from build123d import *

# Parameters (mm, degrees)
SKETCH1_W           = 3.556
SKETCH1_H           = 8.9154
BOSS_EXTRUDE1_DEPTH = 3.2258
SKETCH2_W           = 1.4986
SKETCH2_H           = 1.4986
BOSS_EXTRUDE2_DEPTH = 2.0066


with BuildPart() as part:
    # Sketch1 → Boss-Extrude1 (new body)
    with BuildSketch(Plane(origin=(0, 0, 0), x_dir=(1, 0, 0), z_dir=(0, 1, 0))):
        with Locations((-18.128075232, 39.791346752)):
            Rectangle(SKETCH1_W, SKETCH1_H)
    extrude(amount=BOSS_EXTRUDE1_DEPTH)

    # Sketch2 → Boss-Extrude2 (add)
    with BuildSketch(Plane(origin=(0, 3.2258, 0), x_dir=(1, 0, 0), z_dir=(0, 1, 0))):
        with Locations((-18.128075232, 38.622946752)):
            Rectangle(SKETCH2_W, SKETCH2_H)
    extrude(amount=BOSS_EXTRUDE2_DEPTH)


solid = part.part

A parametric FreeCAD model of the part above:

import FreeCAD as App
import Part
import Sketcher

V = App.Vector
Q = App.Units.Quantity


def add_polygon(sketch, points):
    """Adds a closed chain of lines whose ends are joined by coincident constraints."""
    first, n = sketch.GeometryCount, len(points)
    for a, b in zip(points, points[1:] + points[:1]):
        sketch.addGeometry(Part.LineSegment(App.Vector(*a, 0), App.Vector(*b, 0)), False)
    for i in range(n):
        sketch.addConstraint(Sketcher.Constraint("Coincident", first + i, 2, first + (i + 1) % n, 1))

doc = App.newDocument("Part")
body = doc.addObject("PartDesign::Body", "Body")

sketch1 = body.newObject("Sketcher::SketchObject", "Sketch")
sketch1.AttachmentSupport = (doc.getObject("XZ_Plane"), [""])
sketch1.MapMode = "FlatFace"
add_polygon(sketch1, [(-19.906075, -44.249047), (-19.906075, -35.333647), (-16.350075, -35.333647), (-16.350075, -44.249047)])
sketch1.addConstraint([
    Sketcher.Constraint("Vertical", 0),
    Sketcher.Constraint("Horizontal", 1),
    Sketcher.Constraint("Vertical", 2),
    Sketcher.Constraint("Horizontal", 3),
    Sketcher.Constraint("DistanceX", 1, 1, 1, 2, Q("0.14 in")),
    Sketcher.Constraint("DistanceY", 0, 1, 0, 2, Q("0.351 in")),
    Sketcher.Constraint("DistanceX", 0, 2, -1, 1, Q("19.906075 mm")),
    Sketcher.Constraint("DistanceY", 0, 2, -1, 1, Q("35.333647 mm")),
])
pad1 = body.newObject("PartDesign::Pad", "Pad")
pad1.Profile = sketch1
pad1.Length = Q("0.127 in")
pad1.Reversed = True

sketch2 = body.newObject("Sketcher::SketchObject", "Sketch001")
sketch2.AttachmentSupport = (doc.getObject("XZ_Plane"), [""])
sketch2.MapMode = "FlatFace"
sketch2.AttachmentOffset = App.Placement(V(0, 0, -0.127 * 25.4), App.Rotation())
add_polygon(sketch2, [(-18.877375, -39.372247), (-18.877375, -37.873647), (-17.378775, -37.873647), (-17.378775, -39.372247)])
sketch2.addConstraint([
    Sketcher.Constraint("Vertical", 0),
    Sketcher.Constraint("Horizontal", 1),
    Sketcher.Constraint("Vertical", 2),
    Sketcher.Constraint("Horizontal", 3),
    Sketcher.Constraint("Equal", 3, 0),
    Sketcher.Constraint("DistanceX", 1, 1, 1, 2, Q("0.059 in")),
    Sketcher.Constraint("DistanceX", 0, 2, -1, 1, Q("18.877375 mm")),
    Sketcher.Constraint("DistanceY", 0, 2, -1, 1, Q("37.873647 mm")),
])
pad2 = body.newObject("PartDesign::Pad", "Pad001")
pad2.Profile = sketch2
pad2.Length = Q("0.079 in")
pad2.Reversed = True

doc.recompute()
